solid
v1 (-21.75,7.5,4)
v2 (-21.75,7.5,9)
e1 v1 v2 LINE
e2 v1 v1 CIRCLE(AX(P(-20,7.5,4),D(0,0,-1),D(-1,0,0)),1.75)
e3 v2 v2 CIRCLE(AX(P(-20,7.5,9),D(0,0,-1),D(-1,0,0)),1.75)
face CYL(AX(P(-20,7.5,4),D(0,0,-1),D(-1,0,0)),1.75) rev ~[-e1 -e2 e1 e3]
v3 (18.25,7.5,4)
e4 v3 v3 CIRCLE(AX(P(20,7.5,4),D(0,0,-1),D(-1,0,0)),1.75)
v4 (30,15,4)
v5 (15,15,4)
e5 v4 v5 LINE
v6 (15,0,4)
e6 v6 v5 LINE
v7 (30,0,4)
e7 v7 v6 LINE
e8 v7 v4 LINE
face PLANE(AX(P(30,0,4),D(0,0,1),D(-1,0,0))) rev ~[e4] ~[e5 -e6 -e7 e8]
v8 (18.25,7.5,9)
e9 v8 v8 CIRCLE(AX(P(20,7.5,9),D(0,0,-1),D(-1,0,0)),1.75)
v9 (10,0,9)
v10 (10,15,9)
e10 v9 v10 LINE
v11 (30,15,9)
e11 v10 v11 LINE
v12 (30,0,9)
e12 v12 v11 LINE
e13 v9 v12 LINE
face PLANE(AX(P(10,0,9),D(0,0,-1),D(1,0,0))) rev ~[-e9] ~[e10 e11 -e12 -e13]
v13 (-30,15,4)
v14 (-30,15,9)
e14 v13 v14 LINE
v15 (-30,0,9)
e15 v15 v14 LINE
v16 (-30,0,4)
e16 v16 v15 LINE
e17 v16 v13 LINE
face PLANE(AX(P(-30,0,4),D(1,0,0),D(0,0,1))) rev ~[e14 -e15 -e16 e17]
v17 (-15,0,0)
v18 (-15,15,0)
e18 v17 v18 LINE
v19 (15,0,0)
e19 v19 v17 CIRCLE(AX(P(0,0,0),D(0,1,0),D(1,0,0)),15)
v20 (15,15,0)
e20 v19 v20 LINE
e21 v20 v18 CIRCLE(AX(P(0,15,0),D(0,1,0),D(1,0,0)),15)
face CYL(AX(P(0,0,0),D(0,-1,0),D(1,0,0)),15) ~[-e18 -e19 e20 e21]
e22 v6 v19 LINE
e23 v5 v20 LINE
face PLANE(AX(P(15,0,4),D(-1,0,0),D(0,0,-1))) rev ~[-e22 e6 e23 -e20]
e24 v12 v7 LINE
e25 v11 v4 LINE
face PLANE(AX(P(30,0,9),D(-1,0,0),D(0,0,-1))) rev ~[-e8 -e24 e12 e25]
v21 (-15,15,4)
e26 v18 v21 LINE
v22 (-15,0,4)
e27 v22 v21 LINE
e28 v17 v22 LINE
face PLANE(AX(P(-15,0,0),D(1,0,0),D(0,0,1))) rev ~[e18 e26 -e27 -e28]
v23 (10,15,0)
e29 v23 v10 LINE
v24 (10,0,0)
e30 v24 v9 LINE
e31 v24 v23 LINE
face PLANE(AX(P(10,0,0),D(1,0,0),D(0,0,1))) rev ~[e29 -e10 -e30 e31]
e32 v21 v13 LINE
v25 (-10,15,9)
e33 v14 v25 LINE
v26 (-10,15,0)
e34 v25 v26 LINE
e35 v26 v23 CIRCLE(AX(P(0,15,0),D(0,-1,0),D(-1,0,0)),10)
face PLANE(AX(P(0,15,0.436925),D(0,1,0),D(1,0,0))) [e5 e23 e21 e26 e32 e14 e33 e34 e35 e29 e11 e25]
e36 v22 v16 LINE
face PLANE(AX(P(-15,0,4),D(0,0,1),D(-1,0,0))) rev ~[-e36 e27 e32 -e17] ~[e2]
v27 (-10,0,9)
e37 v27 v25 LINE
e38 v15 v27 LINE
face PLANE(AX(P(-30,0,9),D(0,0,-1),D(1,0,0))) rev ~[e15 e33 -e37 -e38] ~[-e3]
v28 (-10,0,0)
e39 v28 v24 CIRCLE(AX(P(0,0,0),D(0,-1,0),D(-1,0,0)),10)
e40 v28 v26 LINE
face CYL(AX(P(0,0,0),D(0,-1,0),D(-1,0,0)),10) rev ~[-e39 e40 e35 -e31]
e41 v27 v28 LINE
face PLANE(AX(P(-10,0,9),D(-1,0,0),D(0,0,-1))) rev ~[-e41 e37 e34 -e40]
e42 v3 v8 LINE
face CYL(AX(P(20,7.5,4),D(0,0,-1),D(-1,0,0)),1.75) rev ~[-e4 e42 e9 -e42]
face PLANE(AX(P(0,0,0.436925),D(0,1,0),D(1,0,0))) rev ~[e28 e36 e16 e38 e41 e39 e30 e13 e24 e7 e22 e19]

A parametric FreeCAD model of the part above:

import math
import FreeCAD as App
import Part
import Sketcher

V = App.Vector
Q = App.Units.Quantity

doc = App.newDocument("Part")
params = doc.addObject("Spreadsheet::Sheet", "Params")
for row, (alias, value) in enumerate([
    ("sketch1_radius", "10 mm"),
    ("sketch1_radius2", "15 mm"),
    ("sketch1_width", "20 mm"),
    ("sketch1_height", "5 mm"),
    ("sketch1_height2", "9 mm"),
    ("pad1_length", "15 mm"),
    ("sketch2_diameter", "3.5 mm"),
], start=1):
    params.set(f"A{row}", alias)
    params.set(f"B{row}", "=" + value)
    params.setAlias(f"B{row}", alias)

body = doc.addObject("PartDesign::Body", "Body")

# Sketch on XZ plane
sketch1 = body.newObject("Sketcher::SketchObject", "Sketch")
sketch1.AttachmentSupport = (doc.getObject("XZ_Plane"), [""])
sketch1.MapMode = "FlatFace"
sketch1.addGeometry(Part.LineSegment(V(-30, 4, 0), V(-30, 9, 0)), False)
sketch1.addGeometry(Part.LineSegment(V(-30, 9, 0), V(-10, 9, 0)), False)
sketch1.addGeometry(Part.LineSegment(V(-10, 9, 0), V(-10, 0, 0)), False)
sketch1.addGeometry(Part.ArcOfCircle(Part.Circle(V(0, 0, 0), V(0, 0, 1), 10), math.radians(180), math.radians(360)), False)
sketch1.addGeometry(Part.LineSegment(V(10, 0, 0), V(10, 9, 0)), False)
sketch1.addGeometry(Part.LineSegment(V(10, 9, 0), V(30, 9, 0)), False)
sketch1.addGeometry(Part.LineSegment(V(30, 9, 0), V(30, 4, 0)), False)
sketch1.addGeometry(Part.LineSegment(V(30, 4, 0), V(15, 4, 0)), False)
sketch1.addGeometry(Part.LineSegment(V(15, 4, 0), V(15, 0, 0)), False)
sketch1.addGeometry(Part.ArcOfCircle(Part.Circle(V(0, 0, 0), V(0, 0, 1), 15), math.radians(180), math.radians(360)), False)
sketch1.addGeometry(Part.LineSegment(V(-15, 0, 0), V(-15, 4, 0)), False)
sketch1.addGeometry(Part.LineSegment(V(-15, 4, 0), V(-30, 4, 0)), False)
sketch1.addConstraint(Sketcher.Constraint("Coincident", 0, 2, 1, 1))
sketch1.addConstraint(Sketcher.Constraint("Coincident", 1, 2, 2, 1))
sketch1.addConstraint(Sketcher.Constraint("Tangent", 2, 2, 3, 1))
sketch1.addConstraint(Sketcher.Constraint("Tangent", 3, 2, 4, 1))
sketch1.addConstraint(Sketcher.Constraint("Coincident", 4, 2, 5, 1))
sketch1.addConstraint(Sketcher.Constraint("Coincident", 5, 2, 6, 1))
sketch1.addConstraint(Sketcher.Constraint("Coincident", 6, 2, 7, 1))
sketch1.addConstraint(Sketcher.Constraint("Coincident", 7, 2, 8, 1))
sketch1.addConstraint(Sketcher.Constraint("Tangent", 8, 2, 9, 2))
sketch1.addConstraint(Sketcher.Constraint("Tangent", 9, 1, 10, 1))
sketch1.addConstraint(Sketcher.Constraint("Coincident", 10, 2, 11, 1))
sketch1.addConstraint(Sketcher.Constraint("Coincident", 11, 2, 0, 1))
sketch1.addConstraint(Sketcher.Constraint("Vertical", 0))
sketch1.addConstraint(Sketcher.Constraint("Horizontal", 1))
sketch1.addConstraint(Sketcher.Constraint("Vertical", 2))
sketch1.addConstraint(Sketcher.Constraint("Vertical", 4))
sketch1.addConstraint(Sketcher.Constraint("Horizontal", 5))
sketch1.addConstraint(Sketcher.Constraint("Vertical", 6))
sketch1.addConstraint(Sketcher.Constraint("Horizontal", 7))
sketch1.addConstraint(Sketcher.Constraint("Vertical", 8))
sketch1.addConstraint(Sketcher.Constraint("Vertical", 10))
sketch1.addConstraint(Sketcher.Constraint("Horizontal", 11))
sketch1.addConstraint(Sketcher.Constraint("Coincident", 3, 3, -1, 1))
sketch1.addConstraint(Sketcher.Constraint("Coincident", 9, 3, -1, 1))
sketch1.addConstraint(Sketcher.Constraint("Symmetric", 0, 2, 5, 2, -2))
sketch1.addConstraint(Sketcher.Constraint("Horizontal", 7, 2, 10, 2))
sketch1.addConstraint(Sketcher.Constraint("Radius", 3, Q("10 mm")))
sketch1.addConstraint(Sketcher.Constraint("Radius", 9, Q("15 mm")))
sketch1.addConstraint(Sketcher.Constraint("DistanceX", 1, 1, 1, 2, Q("20 mm")))
sketch1.addConstraint(Sketcher.Constraint("DistanceY", 0, 1, 0, 2, Q("5 mm")))
sketch1.addConstraint(Sketcher.Constraint("DistanceY", 2, 2, 2, 1, Q("9 mm")))
sketch1.setExpression("Constraints[26]", "Params.sketch1_radius")
sketch1.setExpression("Constraints[27]", "Params.sketch1_radius2")
sketch1.setExpression("Constraints[28]", "Params.sketch1_width")
sketch1.setExpression("Constraints[29]", "Params.sketch1_height")
sketch1.setExpression("Constraints[30]", "Params.sketch1_height2")
pad1 = body.newObject("PartDesign::Pad", "Pad")
pad1.Profile = sketch1
pad1.setExpression("Length", "Params.pad1_length")
pad1.Reversed = True

# Sketch on XY plane
sketch2 = body.newObject("Sketcher::SketchObject", "Sketch001")
sketch2.AttachmentSupport = (doc.getObject("XY_Plane"), [""])
sketch2.MapMode = "FlatFace"
sketch2.AttachmentOffset = App.Placement(V(0, 0, 4), App.Rotation())
sketch2.addGeometry(Part.Circle(V(20, 7.5, 0), V(0, 0, 1), 1.8), False)
sketch2.addGeometry(Part.Circle(V(-20, 7.5, 0), V(0, 0, 1), 1.8), False)
sketch2.addConstraint(Sketcher.Constraint("Equal", 0, 1))
sketch2.addConstraint(Sketcher.Constraint("Symmetric", 0, 3, 1, 3, -2))
sketch2.addConstraint(Sketcher.Constraint("Diameter", 0, Q("3.5 mm")))
sketch2.addConstraint(Sketcher.Constraint("DistanceX", -1, 1, 0, 3, Q("20 mm")))
sketch2.addConstraint(Sketcher.Constraint("DistanceY", -1, 1, 0, 3, Q("7.5 mm")))
sketch2.setExpression("Constraints[2]", "Params.sketch2_diameter")
pocket1 = body.newObject("PartDesign::Pocket", "Pocket")
pocket1.Profile = sketch2
pocket1.Type = "ThroughAll"
pocket1.Reversed = True

doc.recompute()
